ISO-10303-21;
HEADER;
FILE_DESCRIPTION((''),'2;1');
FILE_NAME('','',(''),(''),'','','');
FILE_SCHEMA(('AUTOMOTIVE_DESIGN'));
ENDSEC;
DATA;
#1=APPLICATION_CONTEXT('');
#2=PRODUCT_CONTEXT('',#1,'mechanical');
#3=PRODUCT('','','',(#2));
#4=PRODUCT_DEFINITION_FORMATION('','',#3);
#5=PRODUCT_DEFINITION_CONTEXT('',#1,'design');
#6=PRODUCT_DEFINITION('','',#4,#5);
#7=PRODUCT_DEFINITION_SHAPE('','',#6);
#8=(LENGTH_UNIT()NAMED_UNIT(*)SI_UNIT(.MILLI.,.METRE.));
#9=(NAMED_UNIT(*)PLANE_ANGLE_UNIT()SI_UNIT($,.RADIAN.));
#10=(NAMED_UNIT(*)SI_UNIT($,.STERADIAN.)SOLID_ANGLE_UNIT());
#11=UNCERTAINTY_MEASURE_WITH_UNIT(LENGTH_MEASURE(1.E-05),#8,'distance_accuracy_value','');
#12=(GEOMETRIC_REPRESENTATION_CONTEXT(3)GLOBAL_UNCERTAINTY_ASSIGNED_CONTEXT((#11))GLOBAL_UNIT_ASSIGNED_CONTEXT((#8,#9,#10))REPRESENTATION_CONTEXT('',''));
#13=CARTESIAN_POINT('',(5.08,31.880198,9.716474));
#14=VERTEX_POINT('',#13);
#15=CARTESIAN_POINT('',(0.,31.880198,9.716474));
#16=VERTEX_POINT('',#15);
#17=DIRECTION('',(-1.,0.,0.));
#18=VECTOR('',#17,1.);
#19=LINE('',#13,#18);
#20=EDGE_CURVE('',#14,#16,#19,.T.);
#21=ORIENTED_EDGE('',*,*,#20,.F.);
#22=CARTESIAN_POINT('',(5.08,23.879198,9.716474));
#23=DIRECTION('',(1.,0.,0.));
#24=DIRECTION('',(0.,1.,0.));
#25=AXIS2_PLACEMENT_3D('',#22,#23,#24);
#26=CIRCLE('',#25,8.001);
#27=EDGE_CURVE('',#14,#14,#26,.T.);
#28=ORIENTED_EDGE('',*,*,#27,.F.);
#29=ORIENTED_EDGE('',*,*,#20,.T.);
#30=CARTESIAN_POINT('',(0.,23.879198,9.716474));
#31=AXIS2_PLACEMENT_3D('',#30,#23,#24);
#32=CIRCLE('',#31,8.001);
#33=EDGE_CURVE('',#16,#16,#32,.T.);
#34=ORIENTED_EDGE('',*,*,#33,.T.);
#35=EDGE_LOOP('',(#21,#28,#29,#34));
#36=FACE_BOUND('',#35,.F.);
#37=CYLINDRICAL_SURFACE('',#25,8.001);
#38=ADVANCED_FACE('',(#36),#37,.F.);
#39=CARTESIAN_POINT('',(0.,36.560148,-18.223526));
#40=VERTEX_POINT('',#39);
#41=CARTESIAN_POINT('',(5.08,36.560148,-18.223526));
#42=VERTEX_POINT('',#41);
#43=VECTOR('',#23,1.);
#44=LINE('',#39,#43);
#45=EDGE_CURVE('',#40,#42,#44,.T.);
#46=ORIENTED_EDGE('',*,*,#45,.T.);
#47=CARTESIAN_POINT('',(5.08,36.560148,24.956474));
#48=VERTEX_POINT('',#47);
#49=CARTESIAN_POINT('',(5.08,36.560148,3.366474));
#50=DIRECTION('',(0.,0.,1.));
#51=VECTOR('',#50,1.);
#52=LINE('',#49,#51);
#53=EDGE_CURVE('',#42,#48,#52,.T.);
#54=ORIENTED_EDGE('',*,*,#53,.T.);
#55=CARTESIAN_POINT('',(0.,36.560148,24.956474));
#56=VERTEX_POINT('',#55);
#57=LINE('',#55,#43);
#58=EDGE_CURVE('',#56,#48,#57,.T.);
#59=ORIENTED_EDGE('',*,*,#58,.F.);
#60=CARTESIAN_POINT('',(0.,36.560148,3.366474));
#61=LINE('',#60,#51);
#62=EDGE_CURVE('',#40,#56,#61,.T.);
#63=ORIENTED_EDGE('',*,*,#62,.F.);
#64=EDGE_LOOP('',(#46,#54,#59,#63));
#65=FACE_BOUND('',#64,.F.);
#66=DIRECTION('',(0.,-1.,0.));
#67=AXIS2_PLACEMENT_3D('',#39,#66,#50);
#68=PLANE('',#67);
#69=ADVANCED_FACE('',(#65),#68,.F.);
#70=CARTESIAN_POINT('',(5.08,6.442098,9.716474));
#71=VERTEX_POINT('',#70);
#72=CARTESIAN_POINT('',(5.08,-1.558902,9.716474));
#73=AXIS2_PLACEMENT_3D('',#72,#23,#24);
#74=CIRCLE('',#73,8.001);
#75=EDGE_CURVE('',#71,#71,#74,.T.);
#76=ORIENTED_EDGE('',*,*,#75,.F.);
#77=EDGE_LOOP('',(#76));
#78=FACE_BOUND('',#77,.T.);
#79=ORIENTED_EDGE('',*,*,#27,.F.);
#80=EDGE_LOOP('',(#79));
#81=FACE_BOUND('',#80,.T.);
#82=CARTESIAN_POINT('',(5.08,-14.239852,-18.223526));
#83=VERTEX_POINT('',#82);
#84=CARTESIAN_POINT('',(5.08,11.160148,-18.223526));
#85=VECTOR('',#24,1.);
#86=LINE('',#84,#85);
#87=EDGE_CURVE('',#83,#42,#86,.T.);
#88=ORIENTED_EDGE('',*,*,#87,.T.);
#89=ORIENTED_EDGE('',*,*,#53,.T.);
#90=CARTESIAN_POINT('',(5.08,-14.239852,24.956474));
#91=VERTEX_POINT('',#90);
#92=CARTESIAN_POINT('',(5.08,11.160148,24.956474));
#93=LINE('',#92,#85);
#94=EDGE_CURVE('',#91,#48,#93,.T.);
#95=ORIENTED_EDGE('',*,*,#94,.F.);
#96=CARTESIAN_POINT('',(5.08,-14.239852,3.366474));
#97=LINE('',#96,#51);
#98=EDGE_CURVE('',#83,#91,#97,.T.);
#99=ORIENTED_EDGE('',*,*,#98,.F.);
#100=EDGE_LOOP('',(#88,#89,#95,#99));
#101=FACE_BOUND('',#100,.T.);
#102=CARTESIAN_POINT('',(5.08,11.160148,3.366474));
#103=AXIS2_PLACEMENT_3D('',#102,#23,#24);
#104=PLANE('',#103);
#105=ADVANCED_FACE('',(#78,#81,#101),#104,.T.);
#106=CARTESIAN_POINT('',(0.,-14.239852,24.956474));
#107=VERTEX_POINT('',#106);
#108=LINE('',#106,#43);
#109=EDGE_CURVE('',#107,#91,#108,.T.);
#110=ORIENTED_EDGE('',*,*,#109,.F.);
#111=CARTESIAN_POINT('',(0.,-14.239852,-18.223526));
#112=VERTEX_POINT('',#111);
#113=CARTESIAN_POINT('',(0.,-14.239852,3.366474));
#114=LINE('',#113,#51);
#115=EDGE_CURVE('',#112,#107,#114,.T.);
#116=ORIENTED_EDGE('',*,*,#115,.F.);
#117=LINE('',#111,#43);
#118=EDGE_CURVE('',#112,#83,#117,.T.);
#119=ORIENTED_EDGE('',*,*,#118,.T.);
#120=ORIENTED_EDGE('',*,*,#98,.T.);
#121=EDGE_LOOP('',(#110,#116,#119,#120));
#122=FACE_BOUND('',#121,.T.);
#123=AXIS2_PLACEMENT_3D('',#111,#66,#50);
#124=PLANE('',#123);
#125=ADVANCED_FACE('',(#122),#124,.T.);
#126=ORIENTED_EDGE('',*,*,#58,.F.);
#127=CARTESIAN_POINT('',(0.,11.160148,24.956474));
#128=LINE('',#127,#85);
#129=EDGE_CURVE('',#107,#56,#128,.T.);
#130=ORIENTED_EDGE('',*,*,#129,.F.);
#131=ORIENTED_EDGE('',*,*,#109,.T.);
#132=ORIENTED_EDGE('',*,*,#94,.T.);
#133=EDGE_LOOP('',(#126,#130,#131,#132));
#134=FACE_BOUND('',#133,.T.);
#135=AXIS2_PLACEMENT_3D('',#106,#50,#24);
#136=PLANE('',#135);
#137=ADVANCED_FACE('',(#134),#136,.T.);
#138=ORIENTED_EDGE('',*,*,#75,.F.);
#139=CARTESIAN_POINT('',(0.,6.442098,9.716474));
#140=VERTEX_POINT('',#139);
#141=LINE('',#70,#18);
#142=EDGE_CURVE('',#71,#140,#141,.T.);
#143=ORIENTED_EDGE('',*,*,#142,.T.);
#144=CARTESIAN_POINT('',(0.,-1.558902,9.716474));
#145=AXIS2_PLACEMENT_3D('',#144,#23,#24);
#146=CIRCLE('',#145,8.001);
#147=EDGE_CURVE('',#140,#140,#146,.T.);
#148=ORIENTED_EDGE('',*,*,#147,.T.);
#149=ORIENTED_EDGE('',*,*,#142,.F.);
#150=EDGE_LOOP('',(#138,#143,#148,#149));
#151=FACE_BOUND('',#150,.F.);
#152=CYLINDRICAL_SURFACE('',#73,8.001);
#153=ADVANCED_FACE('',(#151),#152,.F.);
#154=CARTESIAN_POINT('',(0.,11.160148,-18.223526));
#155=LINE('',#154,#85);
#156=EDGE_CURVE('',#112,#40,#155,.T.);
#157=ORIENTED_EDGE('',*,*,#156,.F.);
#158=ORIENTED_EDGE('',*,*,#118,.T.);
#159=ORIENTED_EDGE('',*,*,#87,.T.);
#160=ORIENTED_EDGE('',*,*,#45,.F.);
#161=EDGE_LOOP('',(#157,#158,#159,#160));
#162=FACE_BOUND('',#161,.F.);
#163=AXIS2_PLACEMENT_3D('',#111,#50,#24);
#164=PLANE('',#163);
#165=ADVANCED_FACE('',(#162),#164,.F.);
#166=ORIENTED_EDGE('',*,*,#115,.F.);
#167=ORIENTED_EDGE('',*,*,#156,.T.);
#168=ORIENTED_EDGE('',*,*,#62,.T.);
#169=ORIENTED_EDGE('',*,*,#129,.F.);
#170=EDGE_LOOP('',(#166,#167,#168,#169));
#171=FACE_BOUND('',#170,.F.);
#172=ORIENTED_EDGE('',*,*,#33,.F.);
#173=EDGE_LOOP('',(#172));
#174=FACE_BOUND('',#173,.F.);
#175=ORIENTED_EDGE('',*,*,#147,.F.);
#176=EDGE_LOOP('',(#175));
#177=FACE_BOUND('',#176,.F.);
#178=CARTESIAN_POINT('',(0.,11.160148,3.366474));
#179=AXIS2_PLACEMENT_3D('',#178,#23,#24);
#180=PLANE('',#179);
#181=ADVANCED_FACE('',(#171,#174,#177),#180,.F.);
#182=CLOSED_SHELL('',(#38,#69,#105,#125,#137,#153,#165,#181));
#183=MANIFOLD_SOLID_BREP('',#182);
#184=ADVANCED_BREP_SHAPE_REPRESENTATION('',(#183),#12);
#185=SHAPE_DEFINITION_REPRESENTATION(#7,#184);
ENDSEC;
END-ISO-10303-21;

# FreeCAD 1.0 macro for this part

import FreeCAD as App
import Part
import Sketcher
from FreeCAD import Vector
Q = App.Units.Quantity


def add_polygon(sketch, points):
    """Adds a closed chain of lines whose ends are joined by coincident constraints."""
    first, n = sketch.GeometryCount, len(points)
    for a, b in zip(points, points[1:] + points[:1]):
        sketch.addGeometry(Part.LineSegment(App.Vector(*a, 0), App.Vector(*b, 0)), False)
    for i in range(n):
        sketch.addConstraint(Sketcher.Constraint("Coincident", first + i, 2, first + (i + 1) % n, 1))

doc = App.newDocument("Part")
body = doc.addObject("PartDesign::Body", "Body")

# Sketch on YZ plane
sketch1 = body.newObject("Sketcher::SketchObject", "Sketch")
sketch1.AttachmentSupport = (doc.getObject("YZ_Plane"), [""])
sketch1.MapMode = "FlatFace"
add_polygon(sketch1, [(-14, 25), (-14, -18), (37, -18), (37, 25)])  # lines 0-3
sketch1.addConstraint([
    Sketcher.Constraint("Vertical", 0),
    Sketcher.Constraint("Horizontal", 1),
    Sketcher.Constraint("Vertical", 2),
    Sketcher.Constraint("Horizontal", 3),
    Sketcher.Constraint("DistanceX", 1, 1, 1, 2, Q("2 in")),
    Sketcher.Constraint("DistanceY", 0, 2, 0, 1, Q("1.7 in")),
    Sketcher.Constraint("DistanceX", 0, 2, -1, 1, Q("14.239852 mm")),
    Sketcher.Constraint("DistanceY", 0, 2, -1, 1, Q("18.223526 mm")),
])
pad1 = body.newObject("PartDesign::Pad", "Pad")
pad1.Profile = sketch1
pad1.Length = Q("0.2 in")

# Sketch on YZ plane
sketch2 = body.newObject("Sketcher::SketchObject", "Sketch001")
sketch2.AttachmentSupport = (doc.getObject("YZ_Plane"), [""])
sketch2.MapMode = "FlatFace"
sketch2.AttachmentOffset = App.Placement(Vector(0, 0, 0.2 * 25.4), App.Rotation())
sketch2.addGeometry([
    Part.Circle(Vector(24, 10, 0), Vector(0, 0, 1), 8),
    Part.Circle(Vector(-2, 10, 0), Vector(0, 0, 1), 8),
], False)
sketch2.addConstraint([
    Sketcher.Constraint("Equal", 0, 1),
    Sketcher.Constraint("Horizontal", 0, 3, 1, 3),
    Sketcher.Constraint("Diameter", 0, Q("0.63 in")),
    Sketcher.Constraint("DistanceX", 1, 3, 0, 3, Q("1.0015 in")),
    Sketcher.Constraint("DistanceX", -1, 1, 0, 3, Q("23.879198 mm")),
    Sketcher.Constraint("DistanceY", -1, 1, 0, 3, Q("9.716474 mm")),
])
pocket1 = body.newObject("PartDesign::Pocket", "Pocket")
pocket1.Profile = sketch2
pocket1.Length = Q("1 in")

doc.recompute()
